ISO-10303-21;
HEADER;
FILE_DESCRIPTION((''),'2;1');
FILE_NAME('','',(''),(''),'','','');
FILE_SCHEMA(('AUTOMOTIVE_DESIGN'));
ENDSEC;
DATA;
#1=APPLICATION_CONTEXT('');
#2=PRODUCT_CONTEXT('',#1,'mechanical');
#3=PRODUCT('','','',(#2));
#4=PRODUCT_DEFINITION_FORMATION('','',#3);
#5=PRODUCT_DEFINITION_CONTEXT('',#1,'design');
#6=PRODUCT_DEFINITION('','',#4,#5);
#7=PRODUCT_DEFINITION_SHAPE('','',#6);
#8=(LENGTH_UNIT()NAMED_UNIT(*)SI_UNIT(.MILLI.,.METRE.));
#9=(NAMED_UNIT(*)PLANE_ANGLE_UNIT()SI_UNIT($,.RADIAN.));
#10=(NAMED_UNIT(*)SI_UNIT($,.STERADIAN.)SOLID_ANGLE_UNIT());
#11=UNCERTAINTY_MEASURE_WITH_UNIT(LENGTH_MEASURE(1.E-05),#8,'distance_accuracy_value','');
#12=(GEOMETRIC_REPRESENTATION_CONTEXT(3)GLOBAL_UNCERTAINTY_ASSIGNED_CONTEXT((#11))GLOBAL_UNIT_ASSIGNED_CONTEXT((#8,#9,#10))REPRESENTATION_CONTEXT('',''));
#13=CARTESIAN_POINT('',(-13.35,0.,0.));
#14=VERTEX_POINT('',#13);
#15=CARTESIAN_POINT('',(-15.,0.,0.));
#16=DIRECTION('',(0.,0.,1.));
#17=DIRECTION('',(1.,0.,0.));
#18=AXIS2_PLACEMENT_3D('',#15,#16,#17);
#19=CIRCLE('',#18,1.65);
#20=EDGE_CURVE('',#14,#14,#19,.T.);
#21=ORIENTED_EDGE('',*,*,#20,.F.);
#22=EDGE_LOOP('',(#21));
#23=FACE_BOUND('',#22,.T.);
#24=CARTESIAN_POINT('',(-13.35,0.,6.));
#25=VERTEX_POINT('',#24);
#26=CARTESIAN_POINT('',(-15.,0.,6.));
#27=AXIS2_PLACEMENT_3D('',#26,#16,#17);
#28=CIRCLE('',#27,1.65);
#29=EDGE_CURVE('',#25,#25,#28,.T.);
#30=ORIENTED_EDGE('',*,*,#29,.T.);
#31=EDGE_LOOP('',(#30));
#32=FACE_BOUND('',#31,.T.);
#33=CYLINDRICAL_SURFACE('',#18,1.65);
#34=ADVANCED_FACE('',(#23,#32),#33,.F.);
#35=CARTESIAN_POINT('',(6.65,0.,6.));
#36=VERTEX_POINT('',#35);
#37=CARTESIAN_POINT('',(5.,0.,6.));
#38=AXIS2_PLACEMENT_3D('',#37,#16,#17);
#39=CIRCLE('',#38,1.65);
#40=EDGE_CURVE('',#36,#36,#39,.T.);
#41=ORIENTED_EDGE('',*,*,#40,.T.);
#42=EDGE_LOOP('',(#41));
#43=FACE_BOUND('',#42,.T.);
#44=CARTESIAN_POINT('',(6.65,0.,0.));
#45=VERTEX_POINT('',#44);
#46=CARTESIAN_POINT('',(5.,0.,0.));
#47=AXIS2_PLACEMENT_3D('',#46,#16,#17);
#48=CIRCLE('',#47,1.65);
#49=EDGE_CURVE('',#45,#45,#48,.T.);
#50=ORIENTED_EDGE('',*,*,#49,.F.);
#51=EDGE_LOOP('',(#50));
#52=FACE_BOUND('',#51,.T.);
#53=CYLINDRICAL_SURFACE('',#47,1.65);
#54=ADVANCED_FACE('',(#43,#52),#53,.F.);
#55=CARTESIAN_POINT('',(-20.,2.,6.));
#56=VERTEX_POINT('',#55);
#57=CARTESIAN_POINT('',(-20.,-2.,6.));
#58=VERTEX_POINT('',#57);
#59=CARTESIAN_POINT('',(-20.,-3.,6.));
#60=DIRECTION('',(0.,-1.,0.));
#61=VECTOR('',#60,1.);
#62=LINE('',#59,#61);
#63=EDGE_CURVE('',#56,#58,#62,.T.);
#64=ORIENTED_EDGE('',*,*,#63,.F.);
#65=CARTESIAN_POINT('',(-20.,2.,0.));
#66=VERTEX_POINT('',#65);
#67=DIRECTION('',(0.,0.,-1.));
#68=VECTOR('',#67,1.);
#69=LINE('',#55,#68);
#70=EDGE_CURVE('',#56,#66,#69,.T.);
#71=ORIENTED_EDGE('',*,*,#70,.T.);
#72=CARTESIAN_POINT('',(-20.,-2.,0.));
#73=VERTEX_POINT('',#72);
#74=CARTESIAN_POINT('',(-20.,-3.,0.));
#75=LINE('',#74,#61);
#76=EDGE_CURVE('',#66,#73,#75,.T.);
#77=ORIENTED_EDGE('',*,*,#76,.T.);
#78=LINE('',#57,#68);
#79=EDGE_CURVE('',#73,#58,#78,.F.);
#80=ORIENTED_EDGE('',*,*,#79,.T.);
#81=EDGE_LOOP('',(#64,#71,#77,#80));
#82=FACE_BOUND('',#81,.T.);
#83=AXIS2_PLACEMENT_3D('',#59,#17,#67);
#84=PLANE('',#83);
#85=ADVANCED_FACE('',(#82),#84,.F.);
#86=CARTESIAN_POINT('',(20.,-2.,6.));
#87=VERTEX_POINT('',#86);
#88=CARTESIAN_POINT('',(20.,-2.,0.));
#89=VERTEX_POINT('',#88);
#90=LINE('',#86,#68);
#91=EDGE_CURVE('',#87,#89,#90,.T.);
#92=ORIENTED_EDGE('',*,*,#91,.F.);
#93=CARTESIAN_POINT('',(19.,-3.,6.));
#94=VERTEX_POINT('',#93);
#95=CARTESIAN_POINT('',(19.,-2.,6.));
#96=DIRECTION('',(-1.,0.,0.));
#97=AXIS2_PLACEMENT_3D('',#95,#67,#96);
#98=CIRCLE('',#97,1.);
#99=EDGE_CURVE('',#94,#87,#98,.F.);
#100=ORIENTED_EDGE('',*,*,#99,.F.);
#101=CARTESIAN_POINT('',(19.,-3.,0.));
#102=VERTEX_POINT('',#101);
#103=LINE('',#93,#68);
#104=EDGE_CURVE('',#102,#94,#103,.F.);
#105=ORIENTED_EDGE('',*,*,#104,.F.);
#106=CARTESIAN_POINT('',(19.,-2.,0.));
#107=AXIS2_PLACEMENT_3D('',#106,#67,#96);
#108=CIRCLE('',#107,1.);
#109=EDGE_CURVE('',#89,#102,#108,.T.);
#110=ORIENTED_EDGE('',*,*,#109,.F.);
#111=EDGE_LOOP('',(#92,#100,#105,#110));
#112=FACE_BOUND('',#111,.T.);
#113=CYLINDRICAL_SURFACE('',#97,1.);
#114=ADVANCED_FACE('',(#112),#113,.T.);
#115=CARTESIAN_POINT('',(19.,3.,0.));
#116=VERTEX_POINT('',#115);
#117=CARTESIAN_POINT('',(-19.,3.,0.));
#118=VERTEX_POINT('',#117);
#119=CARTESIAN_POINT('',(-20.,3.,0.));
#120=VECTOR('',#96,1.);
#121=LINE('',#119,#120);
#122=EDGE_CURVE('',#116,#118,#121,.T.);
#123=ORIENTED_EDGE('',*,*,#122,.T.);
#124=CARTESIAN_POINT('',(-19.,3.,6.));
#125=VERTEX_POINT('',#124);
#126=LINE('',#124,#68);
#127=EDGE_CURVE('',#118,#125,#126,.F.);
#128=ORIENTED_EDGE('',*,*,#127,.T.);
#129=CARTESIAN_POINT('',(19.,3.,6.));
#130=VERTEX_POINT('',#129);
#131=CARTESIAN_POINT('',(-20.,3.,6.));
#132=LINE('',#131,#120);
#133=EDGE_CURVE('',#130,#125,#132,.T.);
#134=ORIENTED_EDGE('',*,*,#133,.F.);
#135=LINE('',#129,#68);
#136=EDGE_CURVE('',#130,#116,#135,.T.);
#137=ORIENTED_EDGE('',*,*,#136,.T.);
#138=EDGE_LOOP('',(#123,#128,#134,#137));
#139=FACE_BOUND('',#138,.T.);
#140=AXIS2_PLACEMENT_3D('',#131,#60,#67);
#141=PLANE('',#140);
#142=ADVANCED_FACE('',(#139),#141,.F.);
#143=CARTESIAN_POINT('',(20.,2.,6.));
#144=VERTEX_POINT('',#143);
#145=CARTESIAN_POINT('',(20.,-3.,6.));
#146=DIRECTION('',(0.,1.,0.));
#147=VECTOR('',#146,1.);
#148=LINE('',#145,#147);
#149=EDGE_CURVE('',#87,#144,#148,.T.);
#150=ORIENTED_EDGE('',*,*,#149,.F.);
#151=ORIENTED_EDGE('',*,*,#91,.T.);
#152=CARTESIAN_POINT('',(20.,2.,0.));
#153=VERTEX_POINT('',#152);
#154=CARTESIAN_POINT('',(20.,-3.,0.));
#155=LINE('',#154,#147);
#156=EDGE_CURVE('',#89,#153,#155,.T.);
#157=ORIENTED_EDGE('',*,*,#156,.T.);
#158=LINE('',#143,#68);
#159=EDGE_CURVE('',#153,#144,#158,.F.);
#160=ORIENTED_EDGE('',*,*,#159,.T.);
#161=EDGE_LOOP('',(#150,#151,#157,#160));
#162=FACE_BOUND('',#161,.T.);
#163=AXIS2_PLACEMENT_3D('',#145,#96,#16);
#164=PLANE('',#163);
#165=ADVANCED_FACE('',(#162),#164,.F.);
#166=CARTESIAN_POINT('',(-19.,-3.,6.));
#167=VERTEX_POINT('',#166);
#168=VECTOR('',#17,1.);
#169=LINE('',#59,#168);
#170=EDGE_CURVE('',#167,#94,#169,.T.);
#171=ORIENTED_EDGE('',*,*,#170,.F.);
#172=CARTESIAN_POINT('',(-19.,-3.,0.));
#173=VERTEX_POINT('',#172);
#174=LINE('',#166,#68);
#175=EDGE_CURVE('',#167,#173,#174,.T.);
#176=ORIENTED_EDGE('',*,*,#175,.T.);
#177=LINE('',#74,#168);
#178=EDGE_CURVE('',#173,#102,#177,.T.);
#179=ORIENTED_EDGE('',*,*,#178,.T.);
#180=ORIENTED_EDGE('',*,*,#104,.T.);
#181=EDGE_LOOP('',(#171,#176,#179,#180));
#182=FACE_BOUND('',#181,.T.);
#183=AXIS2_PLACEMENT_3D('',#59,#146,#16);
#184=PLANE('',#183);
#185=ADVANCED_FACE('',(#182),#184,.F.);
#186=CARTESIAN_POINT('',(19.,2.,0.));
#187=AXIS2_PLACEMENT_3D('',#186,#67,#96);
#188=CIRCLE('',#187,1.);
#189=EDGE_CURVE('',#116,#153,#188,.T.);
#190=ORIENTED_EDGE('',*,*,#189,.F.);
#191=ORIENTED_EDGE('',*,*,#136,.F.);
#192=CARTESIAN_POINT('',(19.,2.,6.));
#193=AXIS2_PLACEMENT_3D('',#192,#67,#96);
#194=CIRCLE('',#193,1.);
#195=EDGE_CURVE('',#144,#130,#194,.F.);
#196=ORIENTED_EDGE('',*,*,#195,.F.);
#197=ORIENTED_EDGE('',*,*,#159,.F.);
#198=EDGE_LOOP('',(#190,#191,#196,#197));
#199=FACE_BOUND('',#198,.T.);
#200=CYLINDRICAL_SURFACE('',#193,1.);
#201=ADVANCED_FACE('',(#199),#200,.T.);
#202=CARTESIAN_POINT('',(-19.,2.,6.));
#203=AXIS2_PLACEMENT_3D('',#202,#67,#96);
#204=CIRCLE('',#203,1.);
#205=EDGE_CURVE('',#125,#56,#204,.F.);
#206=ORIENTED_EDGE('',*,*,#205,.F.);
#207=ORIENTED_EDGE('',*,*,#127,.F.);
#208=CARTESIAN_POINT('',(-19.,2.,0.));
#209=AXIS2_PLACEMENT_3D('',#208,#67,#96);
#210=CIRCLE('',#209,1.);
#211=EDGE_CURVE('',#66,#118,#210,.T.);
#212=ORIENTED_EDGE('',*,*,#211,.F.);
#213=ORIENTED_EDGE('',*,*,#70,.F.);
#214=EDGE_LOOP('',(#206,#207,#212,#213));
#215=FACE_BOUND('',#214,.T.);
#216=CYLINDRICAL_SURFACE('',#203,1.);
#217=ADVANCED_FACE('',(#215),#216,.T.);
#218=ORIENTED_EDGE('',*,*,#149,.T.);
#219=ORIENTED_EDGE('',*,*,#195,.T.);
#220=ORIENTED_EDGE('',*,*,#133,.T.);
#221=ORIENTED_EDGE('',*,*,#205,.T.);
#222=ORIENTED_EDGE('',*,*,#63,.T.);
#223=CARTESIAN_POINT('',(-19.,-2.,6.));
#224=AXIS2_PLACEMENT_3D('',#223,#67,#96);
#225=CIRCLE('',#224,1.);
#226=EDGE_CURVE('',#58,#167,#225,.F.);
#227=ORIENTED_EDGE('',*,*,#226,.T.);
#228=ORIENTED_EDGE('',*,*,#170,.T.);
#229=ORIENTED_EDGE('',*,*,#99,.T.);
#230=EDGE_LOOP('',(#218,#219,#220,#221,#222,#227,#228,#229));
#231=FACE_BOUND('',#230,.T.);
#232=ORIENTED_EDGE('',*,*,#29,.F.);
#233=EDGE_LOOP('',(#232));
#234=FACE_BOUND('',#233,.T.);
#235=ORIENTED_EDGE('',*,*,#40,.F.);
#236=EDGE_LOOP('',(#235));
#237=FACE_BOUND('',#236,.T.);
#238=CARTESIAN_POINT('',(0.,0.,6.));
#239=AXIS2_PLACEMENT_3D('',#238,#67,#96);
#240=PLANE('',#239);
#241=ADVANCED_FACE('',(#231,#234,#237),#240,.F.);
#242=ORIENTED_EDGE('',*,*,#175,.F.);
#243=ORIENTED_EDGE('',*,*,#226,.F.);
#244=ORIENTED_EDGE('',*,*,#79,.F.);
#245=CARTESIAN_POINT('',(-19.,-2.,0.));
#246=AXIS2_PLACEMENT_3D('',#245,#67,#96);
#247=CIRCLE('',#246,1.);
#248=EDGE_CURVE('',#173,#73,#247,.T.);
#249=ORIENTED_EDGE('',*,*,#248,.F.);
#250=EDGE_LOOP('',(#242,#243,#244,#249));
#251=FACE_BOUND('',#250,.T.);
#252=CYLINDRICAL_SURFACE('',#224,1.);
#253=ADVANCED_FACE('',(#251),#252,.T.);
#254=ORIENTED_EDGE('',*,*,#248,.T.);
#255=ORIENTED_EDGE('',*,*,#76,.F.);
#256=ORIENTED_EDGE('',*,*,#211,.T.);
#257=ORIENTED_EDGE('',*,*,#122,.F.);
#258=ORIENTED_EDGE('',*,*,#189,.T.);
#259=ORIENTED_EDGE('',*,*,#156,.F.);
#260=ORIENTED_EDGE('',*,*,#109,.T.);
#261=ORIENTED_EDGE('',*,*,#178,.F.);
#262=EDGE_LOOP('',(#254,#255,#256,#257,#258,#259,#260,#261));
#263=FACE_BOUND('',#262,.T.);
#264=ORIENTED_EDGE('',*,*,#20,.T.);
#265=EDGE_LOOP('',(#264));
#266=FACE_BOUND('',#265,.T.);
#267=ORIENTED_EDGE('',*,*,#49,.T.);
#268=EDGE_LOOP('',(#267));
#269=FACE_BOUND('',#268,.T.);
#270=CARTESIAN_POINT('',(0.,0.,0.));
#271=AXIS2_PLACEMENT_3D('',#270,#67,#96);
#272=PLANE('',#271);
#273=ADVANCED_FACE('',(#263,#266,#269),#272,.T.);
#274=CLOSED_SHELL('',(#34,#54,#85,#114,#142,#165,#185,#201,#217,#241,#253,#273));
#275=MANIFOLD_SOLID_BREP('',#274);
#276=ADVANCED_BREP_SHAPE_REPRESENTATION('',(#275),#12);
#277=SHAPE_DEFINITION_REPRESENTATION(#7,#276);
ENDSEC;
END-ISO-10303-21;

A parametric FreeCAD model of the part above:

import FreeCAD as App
import Part
import Sketcher

V = App.Vector


def edges_at(feature, points):
    """Names of the edges that pass closest to the given points."""
    edges = feature.Shape.Edges
    near = lambda p: min(range(len(edges)), key=lambda i: edges[i].distToShape(Part.Vertex(*p))[0])
    return sorted({f"Edge{near(p) + 1}" for p in points})


def add_polygon(sketch, points):
    """Adds a closed chain of lines whose ends are joined by coincident constraints."""
    first, n = sketch.GeometryCount, len(points)
    for a, b in zip(points, points[1:] + points[:1]):
        sketch.addGeometry(Part.LineSegment(App.Vector(*a, 0), App.Vector(*b, 0)), False)
    for i in range(n):
        sketch.addConstraint(Sketcher.Constraint("Coincident", first + i, 2, first + (i + 1) % n, 1))

doc = App.newDocument("Part")
body = doc.addObject("PartDesign::Body", "Body")

# Sketch on XY plane
sketch1 = body.newObject("Sketcher::SketchObject", "Sketch")
sketch1.AttachmentSupport = (doc.getObject("XY_Plane"), [""])
sketch1.MapMode = "FlatFace"
add_polygon(sketch1, [(-20, 3), (-20, -3), (20, -3), (20, 3)])  # lines 0-3
sketch1.addConstraint([
    Sketcher.Constraint("Vertical", 0),
    Sketcher.Constraint("Horizontal", 1),
    Sketcher.Constraint("Vertical", 2),
    Sketcher.Constraint("Horizontal", 3),
    Sketcher.Constraint("Symmetric", 0, 2, 2, 2, -1, 1),
    Sketcher.Constraint("DistanceX", 1, 1, 1, 2, 40.0),
    Sketcher.Constraint("DistanceY", 0, 2, 0, 1, 6.0),
])
pad1 = body.newObject("PartDesign::Pad", "Pad")
pad1.Profile = sketch1
pad1.Length = 6

# Sketch on XY plane
sketch2 = body.newObject("Sketcher::SketchObject", "Sketch001")
sketch2.AttachmentSupport = (doc.getObject("XY_Plane"), [""])
sketch2.MapMode = "FlatFace"
sketch2.AttachmentOffset = App.Placement(V(0, 0, 6), App.Rotation())
sketch2.addGeometry([
    Part.Circle(V(5, 0, 0), V(0, 0, 1), 1.6),
    Part.Circle(V(-15, 0, 0), V(0, 0, 1), 1.6),
], False)
sketch2.addConstraint([
    Sketcher.Constraint("Equal", 0, 1),
    Sketcher.Constraint("PointOnObject", 0, 3, -1),
    Sketcher.Constraint("PointOnObject", 1, 3, -1),
    Sketcher.Constraint("Diameter", 0, 3.3),
    Sketcher.Constraint("DistanceX", -1, 1, 0, 3, 5.0),
    Sketcher.Constraint("DistanceX", 1, 3, -1, 1, 15.0),
])
pocket1 = body.newObject("PartDesign::Pocket", "Pocket")
pocket1.Profile = sketch2
pocket1.Length = 6
doc.recompute()

fillet = body.newObject("PartDesign::Fillet", "Fillet")
fillet.Base = (pocket1, edges_at(pocket1, [
    (20, -3, 3),
    (-20, -3, 3),
    (-20, 3, 3),
    (20, 3, 3),
]))
fillet.Radius = 1

doc.recompute()
